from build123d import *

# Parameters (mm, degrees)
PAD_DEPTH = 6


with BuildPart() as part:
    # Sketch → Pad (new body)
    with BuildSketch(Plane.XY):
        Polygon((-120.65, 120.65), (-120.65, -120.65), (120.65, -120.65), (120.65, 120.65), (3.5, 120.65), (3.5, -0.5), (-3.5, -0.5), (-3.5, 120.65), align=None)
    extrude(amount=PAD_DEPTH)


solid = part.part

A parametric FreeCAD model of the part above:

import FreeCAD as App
import Part
import Sketcher
Q = App.Units.Quantity

doc = App.newDocument("Part")
body = doc.addObject("PartDesign::Body", "Body")

# Sketch on XY plane
sketch1 = body.newObject("Sketcher::SketchObject", "Sketch")
sketch1.AttachmentSupport = (doc.getObject("XY_Plane"), [""])
sketch1.MapMode = "FlatFace"
sketch1.addGeometry([
    Part.LineSegment(App.Vector(-120.65, 120.65, 0), App.Vector(-120.65, -120.65, 0)),  # 0
    Part.LineSegment(App.Vector(-120.65, -120.65, 0), App.Vector(120.65, -120.65, 0)),  # 1
    Part.LineSegment(App.Vector(120.65, -120.65, 0), App.Vector(120.65, 120.65, 0)),  # 2
    Part.LineSegment(App.Vector(120.65, 120.65, 0), App.Vector(3.5, 120.65, 0)),  # 3
    Part.LineSegment(App.Vector(3.5, 120.65, 0), App.Vector(3.5, -0.5, 0)),  # 4
    Part.LineSegment(App.Vector(3.5, -0.5, 0), App.Vector(-3.5, -0.5, 0)),  # 5
    Part.LineSegment(App.Vector(-3.5, -0.5, 0), App.Vector(-3.5, 120.65, 0)),  # 6
    Part.LineSegment(App.Vector(-3.5, 120.65, 0), App.Vector(-120.65, 120.65, 0)),  # 7
], False)
sketch1.addConstraint([
    Sketcher.Constraint("Coincident", 0, 2, 1, 1),
    Sketcher.Constraint("Coincident", 1, 2, 2, 1),
    Sketcher.Constraint("Coincident", 2, 2, 3, 1),
    Sketcher.Constraint("Coincident", 3, 2, 4, 1),
    Sketcher.Constraint("Coincident", 4, 2, 5, 1),
    Sketcher.Constraint("Coincident", 5, 2, 6, 1),
    Sketcher.Constraint("Coincident", 6, 2, 7, 1),
    Sketcher.Constraint("Coincident", 7, 2, 0, 1),
    Sketcher.Constraint("Vertical", 0),
    Sketcher.Constraint("Horizontal", 1),
    Sketcher.Constraint("Vertical", 2),
    Sketcher.Constraint("Horizontal", 3),
    Sketcher.Constraint("Vertical", 4),
    Sketcher.Constraint("Horizontal", 5),
    Sketcher.Constraint("Vertical", 6),
    Sketcher.Constraint("Horizontal", 7),
    Sketcher.Constraint("Symmetric", 0, 2, 2, 2, -1, 1),
    Sketcher.Constraint("Symmetric", 3, 2, 6, 2, -2),
    Sketcher.Constraint("Equal", 1, 0),
    Sketcher.Constraint("DistanceX", 5, 2, 5, 1, Q("7 mm")),
    Sketcher.Constraint("DistanceX", 1, 1, 1, 2, Q("241.3 mm")),
    Sketcher.Constraint("DistanceY", 4, 2, 4, 1, Q("121.15 mm")),
])
pad1 = body.newObject("PartDesign::Pad", "Pad")
pad1.Profile = sketch1
pad1.Length = 6

doc.recompute()
